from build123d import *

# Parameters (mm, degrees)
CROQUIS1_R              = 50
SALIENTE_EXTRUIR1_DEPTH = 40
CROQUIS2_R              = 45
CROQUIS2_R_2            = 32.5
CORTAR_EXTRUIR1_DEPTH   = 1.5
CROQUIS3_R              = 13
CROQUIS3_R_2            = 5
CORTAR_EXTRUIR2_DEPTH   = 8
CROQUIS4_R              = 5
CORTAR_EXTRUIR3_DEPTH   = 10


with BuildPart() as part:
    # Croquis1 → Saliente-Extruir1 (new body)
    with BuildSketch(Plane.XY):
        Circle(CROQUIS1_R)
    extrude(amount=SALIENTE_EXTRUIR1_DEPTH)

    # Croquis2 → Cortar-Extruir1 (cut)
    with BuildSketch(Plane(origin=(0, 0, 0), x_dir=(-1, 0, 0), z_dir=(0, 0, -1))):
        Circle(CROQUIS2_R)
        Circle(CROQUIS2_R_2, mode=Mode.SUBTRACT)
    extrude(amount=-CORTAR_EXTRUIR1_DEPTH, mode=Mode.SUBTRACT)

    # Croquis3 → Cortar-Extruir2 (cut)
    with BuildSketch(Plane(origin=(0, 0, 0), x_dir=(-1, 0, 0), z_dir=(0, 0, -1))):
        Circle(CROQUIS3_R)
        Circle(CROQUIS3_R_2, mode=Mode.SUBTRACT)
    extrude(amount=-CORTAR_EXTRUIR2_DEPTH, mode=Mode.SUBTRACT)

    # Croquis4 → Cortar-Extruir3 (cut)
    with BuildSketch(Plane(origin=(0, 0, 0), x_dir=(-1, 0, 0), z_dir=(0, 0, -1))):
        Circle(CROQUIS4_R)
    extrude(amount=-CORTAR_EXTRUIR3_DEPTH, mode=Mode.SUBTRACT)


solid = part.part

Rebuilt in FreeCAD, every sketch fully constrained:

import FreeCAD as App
import Part
import Sketcher

doc = App.newDocument("Part")
body = doc.addObject("PartDesign::Body", "Body")

sketch1 = body.newObject("Sketcher::SketchObject", "Sketch")
sketch1.AttachmentSupport = (doc.getObject("XY_Plane"), [""])
sketch1.MapMode = "FlatFace"
sketch1.addGeometry(Part.Circle(App.Vector(0, 0, 0), App.Vector(0, 0, 1), 50), False)
sketch1.addConstraint([
    Sketcher.Constraint("Coincident", 0, 3, -1, 1),
    Sketcher.Constraint("Diameter", 0, 100.0),
])
pad1 = body.newObject("PartDesign::Pad", "Pad")
pad1.Profile = sketch1
pad1.Length = 40

sketch2 = body.newObject("Sketcher::SketchObject", "Sketch001")
sketch2.AttachmentSupport = (doc.getObject("XY_Plane"), [""])
sketch2.MapMode = "FlatFace"
sketch2.addGeometry([
    Part.Circle(App.Vector(0, 0, 0), App.Vector(0, 0, 1), 45),
    Part.Circle(App.Vector(0, 0, 0), App.Vector(0, 0, 1), 32),
], False)
sketch2.addConstraint([
    Sketcher.Constraint("Coincident", 0, 3, -1, 1),
    Sketcher.Constraint("Coincident", 1, 3, -1, 1),
    Sketcher.Constraint("Diameter", 0, 90.0),
    Sketcher.Constraint("Diameter", 1, 65.0),
])
pocket1 = body.newObject("PartDesign::Pocket", "Pocket")
pocket1.Profile = sketch2
pocket1.Length = 1.5
pocket1.Reversed = True

sketch3 = body.newObject("Sketcher::SketchObject", "Sketch002")
sketch3.AttachmentSupport = (doc.getObject("XY_Plane"), [""])
sketch3.MapMode = "FlatFace"
sketch3.addGeometry([
    Part.Circle(App.Vector(0, 0, 0), App.Vector(0, 0, 1), 13),
    Part.Circle(App.Vector(0, 0, 0), App.Vector(0, 0, 1), 5),
], False)
sketch3.addConstraint([
    Sketcher.Constraint("Coincident", 0, 3, -1, 1),
    Sketcher.Constraint("Coincident", 1, 3, -1, 1),
    Sketcher.Constraint("Diameter", 0, 26.0),
    Sketcher.Constraint("Diameter", 1, 10.0),
])
pocket2 = body.newObject("PartDesign::Pocket", "Pocket001")
pocket2.Profile = sketch3
pocket2.Length = 8
pocket2.Reversed = True

sketch4 = body.newObject("Sketcher::SketchObject", "Sketch003")
sketch4.AttachmentSupport = (doc.getObject("XY_Plane"), [""])
sketch4.MapMode = "FlatFace"
sketch4.addGeometry(Part.Circle(App.Vector(0, 0, 0), App.Vector(0, 0, 1), 5), False)
sketch4.addConstraint([
    Sketcher.Constraint("Coincident", 0, 3, -1, 1),
    Sketcher.Constraint("Diameter", 0, 10.0),
])
pocket3 = body.newObject("PartDesign::Pocket", "Pocket002")
pocket3.Profile = sketch4
pocket3.Length = 10
pocket3.Reversed = True

doc.recompute()
